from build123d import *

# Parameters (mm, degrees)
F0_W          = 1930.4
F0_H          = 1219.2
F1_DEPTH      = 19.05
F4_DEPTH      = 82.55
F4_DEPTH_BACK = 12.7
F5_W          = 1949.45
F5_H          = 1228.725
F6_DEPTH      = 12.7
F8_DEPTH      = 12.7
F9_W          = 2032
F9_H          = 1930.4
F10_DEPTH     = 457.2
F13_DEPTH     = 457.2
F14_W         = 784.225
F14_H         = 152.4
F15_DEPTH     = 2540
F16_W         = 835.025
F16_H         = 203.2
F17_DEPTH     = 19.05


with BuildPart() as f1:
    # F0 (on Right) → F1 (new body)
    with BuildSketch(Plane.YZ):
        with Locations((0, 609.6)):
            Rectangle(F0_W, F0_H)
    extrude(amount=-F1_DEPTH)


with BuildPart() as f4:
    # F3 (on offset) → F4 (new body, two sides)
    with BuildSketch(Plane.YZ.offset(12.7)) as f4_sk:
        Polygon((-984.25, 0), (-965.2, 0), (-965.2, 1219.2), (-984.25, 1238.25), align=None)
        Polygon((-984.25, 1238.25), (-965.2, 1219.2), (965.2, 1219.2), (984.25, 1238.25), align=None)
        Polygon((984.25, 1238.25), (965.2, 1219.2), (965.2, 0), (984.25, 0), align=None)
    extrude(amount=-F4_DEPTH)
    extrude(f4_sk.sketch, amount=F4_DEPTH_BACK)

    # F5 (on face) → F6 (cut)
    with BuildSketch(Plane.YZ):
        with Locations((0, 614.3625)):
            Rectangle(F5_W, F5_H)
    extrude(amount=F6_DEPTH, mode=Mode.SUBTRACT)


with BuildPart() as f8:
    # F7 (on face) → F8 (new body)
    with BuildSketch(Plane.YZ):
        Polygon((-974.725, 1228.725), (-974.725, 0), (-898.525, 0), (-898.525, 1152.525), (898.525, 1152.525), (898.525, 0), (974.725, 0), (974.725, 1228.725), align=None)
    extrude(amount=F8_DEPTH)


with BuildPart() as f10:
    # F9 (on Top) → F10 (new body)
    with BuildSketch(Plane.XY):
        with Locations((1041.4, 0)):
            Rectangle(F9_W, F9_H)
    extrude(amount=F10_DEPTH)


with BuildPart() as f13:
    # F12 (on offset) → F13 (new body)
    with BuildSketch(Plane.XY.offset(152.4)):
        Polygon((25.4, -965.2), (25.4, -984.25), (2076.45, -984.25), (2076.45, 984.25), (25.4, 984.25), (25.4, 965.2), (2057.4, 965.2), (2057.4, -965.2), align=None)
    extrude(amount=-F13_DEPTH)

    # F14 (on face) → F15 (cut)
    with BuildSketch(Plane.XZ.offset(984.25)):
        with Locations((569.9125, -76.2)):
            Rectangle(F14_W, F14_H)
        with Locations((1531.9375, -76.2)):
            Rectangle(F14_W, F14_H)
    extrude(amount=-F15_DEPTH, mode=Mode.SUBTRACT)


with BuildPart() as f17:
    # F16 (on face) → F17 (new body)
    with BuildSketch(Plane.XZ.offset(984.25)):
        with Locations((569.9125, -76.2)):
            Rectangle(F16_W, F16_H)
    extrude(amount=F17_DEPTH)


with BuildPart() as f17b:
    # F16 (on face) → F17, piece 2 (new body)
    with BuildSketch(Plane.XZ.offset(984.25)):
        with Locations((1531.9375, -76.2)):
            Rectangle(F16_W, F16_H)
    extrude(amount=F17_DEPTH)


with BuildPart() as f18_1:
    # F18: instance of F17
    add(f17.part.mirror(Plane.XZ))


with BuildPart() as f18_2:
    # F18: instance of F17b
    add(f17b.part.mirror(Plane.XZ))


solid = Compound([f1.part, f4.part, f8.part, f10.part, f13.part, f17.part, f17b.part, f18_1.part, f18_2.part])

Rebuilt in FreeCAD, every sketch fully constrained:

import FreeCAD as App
import Part
import Sketcher
Q = App.Units.Quantity


def add_polygon(sketch, points):
    """Adds a closed chain of lines whose ends are joined by coincident constraints."""
    first, n = sketch.GeometryCount, len(points)
    for a, b in zip(points, points[1:] + points[:1]):
        sketch.addGeometry(Part.LineSegment(App.Vector(*a, 0), App.Vector(*b, 0)), False)
    for i in range(n):
        sketch.addConstraint(Sketcher.Constraint("Coincident", first + i, 2, first + (i + 1) % n, 1))

doc = App.newDocument("Part")
body = doc.addObject("PartDesign::Body", "Body")

sketch1 = body.newObject("Sketcher::SketchObject", "Sketch")
sketch1.AttachmentSupport = (doc.getObject("YZ_Plane"), [""])
sketch1.MapMode = "FlatFace"
add_polygon(sketch1, [(-965, 1219), (-965, 0), (965, 0), (965, 1219)])
sketch1.addConstraint(Sketcher.Constraint("Vertical", 0))
sketch1.addConstraint(Sketcher.Constraint("Horizontal", 1))
sketch1.addConstraint(Sketcher.Constraint("Vertical", 2))
sketch1.addConstraint(Sketcher.Constraint("Horizontal", 3))
sketch1.addConstraint(Sketcher.Constraint("Symmetric", 0, 2, 1, 2, -1, 1))
sketch1.addConstraint(Sketcher.Constraint("DistanceX", 1, 1, 1, 2, Q("76 in")))
sketch1.addConstraint(Sketcher.Constraint("DistanceY", 0, 2, 0, 1, Q("48 in")))
pad1 = body.newObject("PartDesign::Pad", "Pad")
pad1.Profile = sketch1
pad1.Length = Q("0.75 in")
pad1.Reversed = True
body2 = doc.addObject("PartDesign::Body", "Body001")

sketch2 = body2.newObject("Sketcher::SketchObject", "Sketch001")
sketch2.AttachmentSupport = (doc.getObject("YZ_Plane001"), [""])
sketch2.MapMode = "FlatFace"
sketch2.AttachmentOffset = App.Placement(App.Vector(0, 0, 0.5 * 25.4), App.Rotation())
add_polygon(sketch2, [(-984, 0), (-965, 0), (-965, 1219), (965, 1219), (965, 0), (984, 0), (984, 1238), (-984, 1238)])
sketch2.addConstraint(Sketcher.Constraint("Horizontal", 0))
sketch2.addConstraint(Sketcher.Constraint("Vertical", 1))
sketch2.addConstraint(Sketcher.Constraint("Horizontal", 2))
sketch2.addConstraint(Sketcher.Constraint("Vertical", 3))
sketch2.addConstraint(Sketcher.Constraint("Horizontal", 4))
sketch2.addConstraint(Sketcher.Constraint("Vertical", 5))
sketch2.addConstraint(Sketcher.Constraint("Horizontal", 6))
sketch2.addConstraint(Sketcher.Constraint("Vertical", 7))
sketch2.addConstraint(Sketcher.Constraint("Symmetric", 0, 2, 3, 2, -1, 1))
sketch2.addConstraint(Sketcher.Constraint("Symmetric", 4, 2, 7, 2, -2))
sketch2.addConstraint(Sketcher.Constraint("DistanceX", 2, 1, 2, 2, Q("76 in")))
sketch2.addConstraint(Sketcher.Constraint("DistanceY", 1, 1, 1, 2, Q("48 in")))
sketch2.addConstraint(Sketcher.Constraint("DistanceX", 6, 2, 6, 1, Q("77.5 in")))
sketch2.addConstraint(Sketcher.Constraint("DistanceY", 5, 1, 5, 2, Q("48.75 in")))
pad2 = body2.newObject("PartDesign::Pad", "Pad001")
pad2.Profile = sketch2
pad2.Type = "TwoLengths"
pad2.Length = Q("3.25 in")
pad2.Length2 = Q("0.5 in")
pad2.Reversed = True

sketch3 = body2.newObject("Sketcher::SketchObject", "Sketch002")
sketch3.AttachmentSupport = (doc.getObject("YZ_Plane001"), [""])
sketch3.MapMode = "FlatFace"
add_polygon(sketch3, [(-975, 1229), (-975, 0), (975, 0), (975, 1229)])
sketch3.addConstraint(Sketcher.Constraint("Vertical", 0))
sketch3.addConstraint(Sketcher.Constraint("Horizontal", 1))
sketch3.addConstraint(Sketcher.Constraint("Vertical", 2))
sketch3.addConstraint(Sketcher.Constraint("Horizontal", 3))
sketch3.addConstraint(Sketcher.Constraint("Symmetric", 0, 2, 1, 2, -1, 1))
sketch3.addConstraint(Sketcher.Constraint("DistanceX", 1, 1, 1, 2, Q("76.75 in")))
sketch3.addConstraint(Sketcher.Constraint("DistanceY", 0, 2, 0, 1, Q("48.375 in")))
pocket1 = body2.newObject("PartDesign::Pocket", "Pocket")
pocket1.Profile = sketch3
pocket1.Length = Q("0.5 in")
pocket1.Reversed = True
body3 = doc.addObject("PartDesign::Body", "Body002")

sketch4 = body3.newObject("Sketcher::SketchObject", "Sketch003")
sketch4.AttachmentSupport = (doc.getObject("YZ_Plane002"), [""])
sketch4.MapMode = "FlatFace"
add_polygon(sketch4, [(-975, 1229), (-975, 0), (-899, 0), (-899, 1153), (899, 1153), (899, 0), (975, 0), (975, 1229)])
sketch4.addConstraint(Sketcher.Constraint("Vertical", 0))
sketch4.addConstraint(Sketcher.Constraint("Horizontal", 1))
sketch4.addConstraint(Sketcher.Constraint("Vertical", 2))
sketch4.addConstraint(Sketcher.Constraint("Horizontal", 3))
sketch4.addConstraint(Sketcher.Constraint("Vertical", 4))
sketch4.addConstraint(Sketcher.Constraint("Horizontal", 5))
sketch4.addConstraint(Sketcher.Constraint("Vertical", 6))
sketch4.addConstraint(Sketcher.Constraint("Horizontal", 7))
sketch4.addConstraint(Sketcher.Constraint("Symmetric", 1, 2, 4, 2, -1, 1))
sketch4.addConstraint(Sketcher.Constraint("Symmetric", 0, 2, 5, 2, -2))
sketch4.addConstraint(Sketcher.Constraint("DistanceX", 1, 1, 1, 2, Q("3 in")))
sketch4.addConstraint(Sketcher.Constraint("DistanceY", 3, 2, 6, 2, Q("3 in")))
sketch4.addConstraint(Sketcher.Constraint("DistanceX", 3, 1, 3, 2, Q("70.75 in")))
sketch4.addConstraint(Sketcher.Constraint("DistanceY", 0, 2, 0, 1, Q("48.375 in")))
pad3 = body3.newObject("PartDesign::Pad", "Pad002")
pad3.Profile = sketch4
pad3.Length = Q("0.5 in")
body4 = doc.addObject("PartDesign::Body", "Body003")

sketch5 = body4.newObject("Sketcher::SketchObject", "Sketch004")
sketch5.AttachmentSupport = (doc.getObject("XY_Plane003"), [""])
sketch5.MapMode = "FlatFace"
add_polygon(sketch5, [(25, 965), (25, -965), (2057, -965), (2057, 965)])
sketch5.addConstraint(Sketcher.Constraint("Vertical", 0))
sketch5.addConstraint(Sketcher.Constraint("Horizontal", 1))
sketch5.addConstraint(Sketcher.Constraint("Vertical", 2))
sketch5.addConstraint(Sketcher.Constraint("Horizontal", 3))
sketch5.addConstraint(Sketcher.Constraint("DistanceX", 1, 1, 1, 2, Q("80 in")))
sketch5.addConstraint(Sketcher.Constraint("DistanceY", 0, 2, 0, 1, Q("76 in")))
sketch5.addConstraint(Sketcher.Constraint("DistanceX", -1, 1, 0, 2, Q("1 in")))
sketch5.addConstraint(Sketcher.Constraint("DistanceY", 0, 2, -1, 1, Q("38 in")))
pad4 = body4.newObject("PartDesign::Pad", "Pad003")
pad4.Profile = sketch5
pad4.Length = Q("18 in")
body5 = doc.addObject("PartDesign::Body", "Body004")

sketch6 = body5.newObject("Sketcher::SketchObject", "Sketch005")
sketch6.AttachmentSupport = (doc.getObject("XY_Plane004"), [""])
sketch6.MapMode = "FlatFace"
sketch6.AttachmentOffset = App.Placement(App.Vector(0, 0, 6 * 25.4), App.Rotation())
add_polygon(sketch6, [(25, -965), (25, -984), (2076, -984), (2076, 984), (25, 984), (25, 965), (2057, 965), (2057, -965)])
sketch6.addConstraint(Sketcher.Constraint("Vertical", 0))
sketch6.addConstraint(Sketcher.Constraint("Horizontal", 1))
sketch6.addConstraint(Sketcher.Constraint("Vertical", 2))
sketch6.addConstraint(Sketcher.Constraint("Horizontal", 3))
sketch6.addConstraint(Sketcher.Constraint("Vertical", 4))
sketch6.addConstraint(Sketcher.Constraint("Horizontal", 5))
sketch6.addConstraint(Sketcher.Constraint("Vertical", 6))
sketch6.addConstraint(Sketcher.Constraint("Horizontal", 7))
sketch6.addConstraint(Sketcher.Constraint("Symmetric", 0, 2, 3, 2, -1))
sketch6.addConstraint(Sketcher.Constraint("Equal", 0, 4))
sketch6.addConstraint(Sketcher.Constraint("DistanceX", 5, 1, 5, 2, Q("80 in")))
sketch6.addConstraint(Sketcher.Constraint("DistanceY", 6, 2, 6, 1, Q("76 in")))
sketch6.addConstraint(Sketcher.Constraint("DistanceY", 2, 1, 2, 2, Q("77.5 in")))
sketch6.addConstraint(Sketcher.Constraint("DistanceX", -1, 1, 0, 2, Q("1 in")))
sketch6.addConstraint(Sketcher.Constraint("DistanceX", 1, 1, 1, 2, Q("80.75 in")))
pad5 = body5.newObject("PartDesign::Pad", "Pad004")
pad5.Profile = sketch6
pad5.Length = Q("18 in")
pad5.Reversed = True

sketch7 = body5.newObject("Sketcher::SketchObject", "Sketch006")
sketch7.AttachmentSupport = (doc.getObject("XZ_Plane004"), [""])
sketch7.MapMode = "FlatFace"
sketch7.AttachmentOffset = App.Placement(App.Vector(0, 0, 38.75 * 25.4), App.Rotation())
add_polygon(sketch7, [(178, 0), (178, -152), (962, -152), (962, 0)])
add_polygon(sketch7, [(1140, 0), (1140, -152), (1924, -152), (1924, 0)])
sketch7.addConstraint(Sketcher.Constraint("Vertical", 0))
sketch7.addConstraint(Sketcher.Constraint("Horizontal", 1))
sketch7.addConstraint(Sketcher.Constraint("Vertical", 2))
sketch7.addConstraint(Sketcher.Constraint("Horizontal", 3))
sketch7.addConstraint(Sketcher.Constraint("Vertical", 4))
sketch7.addConstraint(Sketcher.Constraint("Horizontal", 5))
sketch7.addConstraint(Sketcher.Constraint("Vertical", 6))
sketch7.addConstraint(Sketcher.Constraint("Horizontal", 7))
sketch7.addConstraint(Sketcher.Constraint("PointOnObject", 2, 2, -1))
sketch7.addConstraint(Sketcher.Constraint("PointOnObject", 6, 2, -1))
sketch7.addConstraint(Sketcher.Constraint("Horizontal", 1, 2, 4, 2))
sketch7.addConstraint(Sketcher.Constraint("Equal", 3, 5))
sketch7.addConstraint(Sketcher.Constraint("DistanceY", 0, 2, 0, 1, Q("6 in")))
sketch7.addConstraint(Sketcher.Constraint("DistanceX", -1, 1, 0, 2, Q("7 in")))
sketch7.addConstraint(Sketcher.Constraint("DistanceX", 1, 2, 4, 2, Q("7 in")))
sketch7.addConstraint(Sketcher.Constraint("DistanceX", 1, 1, 1, 2, Q("30.875 in")))
pocket2 = body5.newObject("PartDesign::Pocket", "Pocket001")
pocket2.Profile = sketch7
pocket2.Length = Q("100 in")
body6 = doc.addObject("PartDesign::Body", "Body005")

sketch8 = body6.newObject("Sketcher::SketchObject", "Sketch007")
sketch8.AttachmentSupport = (doc.getObject("XZ_Plane005"), [""])
sketch8.MapMode = "FlatFace"
sketch8.AttachmentOffset = App.Placement(App.Vector(0, 0, 38.75 * 25.4), App.Rotation())
add_polygon(sketch8, [(152, 25), (152, -178), (987, -178), (987, 25)])
sketch8.addConstraint(Sketcher.Constraint("Vertical", 0))
sketch8.addConstraint(Sketcher.Constraint("Horizontal", 1))
sketch8.addConstraint(Sketcher.Constraint("Vertical", 2))
sketch8.addConstraint(Sketcher.Constraint("Horizontal", 3))
sketch8.addConstraint(Sketcher.Constraint("DistanceY", 0, 2, 0, 1, Q("8 in")))
sketch8.addConstraint(Sketcher.Constraint("DistanceX", -1, 1, 0, 2, Q("6 in")))
sketch8.addConstraint(Sketcher.Constraint("DistanceY", 0, 2, -1, 1, Q("7 in")))
sketch8.addConstraint(Sketcher.Constraint("DistanceX", 1, 1, 1, 2, Q("32.875 in")))
pad6 = body6.newObject("PartDesign::Pad", "Pad005")
pad6.Profile = sketch8
pad6.Length = Q("0.75 in")
body7 = doc.addObject("PartDesign::Body", "Body006")

sketch9 = body7.newObject("Sketcher::SketchObject", "Sketch008")
sketch9.AttachmentSupport = (doc.getObject("XZ_Plane006"), [""])
sketch9.MapMode = "FlatFace"
sketch9.AttachmentOffset = App.Placement(App.Vector(0, 0, 38.75 * 25.4), App.Rotation())
add_polygon(sketch9, [(1114, 25), (1114, -178), (1949, -178), (1949, 25)])
sketch9.addConstraint(Sketcher.Constraint("Vertical", 0))
sketch9.addConstraint(Sketcher.Constraint("Horizontal", 1))
sketch9.addConstraint(Sketcher.Constraint("Vertical", 2))
sketch9.addConstraint(Sketcher.Constraint("Horizontal", 3))
sketch9.addConstraint(Sketcher.Constraint("DistanceY", 0, 2, 0, 1, Q("8 in")))
sketch9.addConstraint(Sketcher.Constraint("DistanceY", 0, 2, -1, 1, Q("7 in")))
sketch9.addConstraint(Sketcher.Constraint("DistanceX", 1, 1, 1, 2, Q("32.875 in")))
sketch9.addConstraint(Sketcher.Constraint("DistanceX", -1, 1, 1, 2, Q("76.75 in")))
pad7 = body7.newObject("PartDesign::Pad", "Pad006")
pad7.Profile = sketch9
pad7.Length = Q("0.75 in")
body8 = doc.addObject("PartDesign::Body", "Body007")
doc.recompute()

mirroring = doc.addObject("Part::Mirroring", "Mirroring")
mirroring.Source = body6
mirroring.Base = App.Vector(0, 0, 0)
mirroring.Normal = App.Vector(0, -1, 0)
body8.BaseFeature = mirroring
doc.recompute()
body9 = doc.addObject("PartDesign::Body", "Body008")
doc.recompute()

mirroring2 = doc.addObject("Part::Mirroring", "Mirroring001")
mirroring2.Source = body7
mirroring2.Base = App.Vector(0, 0, 0)
mirroring2.Normal = App.Vector(0, -1, 0)
body9.BaseFeature = mirroring2
doc.recompute()
mirroring.Visibility = False
mirroring2.Visibility = False

doc.recompute()
